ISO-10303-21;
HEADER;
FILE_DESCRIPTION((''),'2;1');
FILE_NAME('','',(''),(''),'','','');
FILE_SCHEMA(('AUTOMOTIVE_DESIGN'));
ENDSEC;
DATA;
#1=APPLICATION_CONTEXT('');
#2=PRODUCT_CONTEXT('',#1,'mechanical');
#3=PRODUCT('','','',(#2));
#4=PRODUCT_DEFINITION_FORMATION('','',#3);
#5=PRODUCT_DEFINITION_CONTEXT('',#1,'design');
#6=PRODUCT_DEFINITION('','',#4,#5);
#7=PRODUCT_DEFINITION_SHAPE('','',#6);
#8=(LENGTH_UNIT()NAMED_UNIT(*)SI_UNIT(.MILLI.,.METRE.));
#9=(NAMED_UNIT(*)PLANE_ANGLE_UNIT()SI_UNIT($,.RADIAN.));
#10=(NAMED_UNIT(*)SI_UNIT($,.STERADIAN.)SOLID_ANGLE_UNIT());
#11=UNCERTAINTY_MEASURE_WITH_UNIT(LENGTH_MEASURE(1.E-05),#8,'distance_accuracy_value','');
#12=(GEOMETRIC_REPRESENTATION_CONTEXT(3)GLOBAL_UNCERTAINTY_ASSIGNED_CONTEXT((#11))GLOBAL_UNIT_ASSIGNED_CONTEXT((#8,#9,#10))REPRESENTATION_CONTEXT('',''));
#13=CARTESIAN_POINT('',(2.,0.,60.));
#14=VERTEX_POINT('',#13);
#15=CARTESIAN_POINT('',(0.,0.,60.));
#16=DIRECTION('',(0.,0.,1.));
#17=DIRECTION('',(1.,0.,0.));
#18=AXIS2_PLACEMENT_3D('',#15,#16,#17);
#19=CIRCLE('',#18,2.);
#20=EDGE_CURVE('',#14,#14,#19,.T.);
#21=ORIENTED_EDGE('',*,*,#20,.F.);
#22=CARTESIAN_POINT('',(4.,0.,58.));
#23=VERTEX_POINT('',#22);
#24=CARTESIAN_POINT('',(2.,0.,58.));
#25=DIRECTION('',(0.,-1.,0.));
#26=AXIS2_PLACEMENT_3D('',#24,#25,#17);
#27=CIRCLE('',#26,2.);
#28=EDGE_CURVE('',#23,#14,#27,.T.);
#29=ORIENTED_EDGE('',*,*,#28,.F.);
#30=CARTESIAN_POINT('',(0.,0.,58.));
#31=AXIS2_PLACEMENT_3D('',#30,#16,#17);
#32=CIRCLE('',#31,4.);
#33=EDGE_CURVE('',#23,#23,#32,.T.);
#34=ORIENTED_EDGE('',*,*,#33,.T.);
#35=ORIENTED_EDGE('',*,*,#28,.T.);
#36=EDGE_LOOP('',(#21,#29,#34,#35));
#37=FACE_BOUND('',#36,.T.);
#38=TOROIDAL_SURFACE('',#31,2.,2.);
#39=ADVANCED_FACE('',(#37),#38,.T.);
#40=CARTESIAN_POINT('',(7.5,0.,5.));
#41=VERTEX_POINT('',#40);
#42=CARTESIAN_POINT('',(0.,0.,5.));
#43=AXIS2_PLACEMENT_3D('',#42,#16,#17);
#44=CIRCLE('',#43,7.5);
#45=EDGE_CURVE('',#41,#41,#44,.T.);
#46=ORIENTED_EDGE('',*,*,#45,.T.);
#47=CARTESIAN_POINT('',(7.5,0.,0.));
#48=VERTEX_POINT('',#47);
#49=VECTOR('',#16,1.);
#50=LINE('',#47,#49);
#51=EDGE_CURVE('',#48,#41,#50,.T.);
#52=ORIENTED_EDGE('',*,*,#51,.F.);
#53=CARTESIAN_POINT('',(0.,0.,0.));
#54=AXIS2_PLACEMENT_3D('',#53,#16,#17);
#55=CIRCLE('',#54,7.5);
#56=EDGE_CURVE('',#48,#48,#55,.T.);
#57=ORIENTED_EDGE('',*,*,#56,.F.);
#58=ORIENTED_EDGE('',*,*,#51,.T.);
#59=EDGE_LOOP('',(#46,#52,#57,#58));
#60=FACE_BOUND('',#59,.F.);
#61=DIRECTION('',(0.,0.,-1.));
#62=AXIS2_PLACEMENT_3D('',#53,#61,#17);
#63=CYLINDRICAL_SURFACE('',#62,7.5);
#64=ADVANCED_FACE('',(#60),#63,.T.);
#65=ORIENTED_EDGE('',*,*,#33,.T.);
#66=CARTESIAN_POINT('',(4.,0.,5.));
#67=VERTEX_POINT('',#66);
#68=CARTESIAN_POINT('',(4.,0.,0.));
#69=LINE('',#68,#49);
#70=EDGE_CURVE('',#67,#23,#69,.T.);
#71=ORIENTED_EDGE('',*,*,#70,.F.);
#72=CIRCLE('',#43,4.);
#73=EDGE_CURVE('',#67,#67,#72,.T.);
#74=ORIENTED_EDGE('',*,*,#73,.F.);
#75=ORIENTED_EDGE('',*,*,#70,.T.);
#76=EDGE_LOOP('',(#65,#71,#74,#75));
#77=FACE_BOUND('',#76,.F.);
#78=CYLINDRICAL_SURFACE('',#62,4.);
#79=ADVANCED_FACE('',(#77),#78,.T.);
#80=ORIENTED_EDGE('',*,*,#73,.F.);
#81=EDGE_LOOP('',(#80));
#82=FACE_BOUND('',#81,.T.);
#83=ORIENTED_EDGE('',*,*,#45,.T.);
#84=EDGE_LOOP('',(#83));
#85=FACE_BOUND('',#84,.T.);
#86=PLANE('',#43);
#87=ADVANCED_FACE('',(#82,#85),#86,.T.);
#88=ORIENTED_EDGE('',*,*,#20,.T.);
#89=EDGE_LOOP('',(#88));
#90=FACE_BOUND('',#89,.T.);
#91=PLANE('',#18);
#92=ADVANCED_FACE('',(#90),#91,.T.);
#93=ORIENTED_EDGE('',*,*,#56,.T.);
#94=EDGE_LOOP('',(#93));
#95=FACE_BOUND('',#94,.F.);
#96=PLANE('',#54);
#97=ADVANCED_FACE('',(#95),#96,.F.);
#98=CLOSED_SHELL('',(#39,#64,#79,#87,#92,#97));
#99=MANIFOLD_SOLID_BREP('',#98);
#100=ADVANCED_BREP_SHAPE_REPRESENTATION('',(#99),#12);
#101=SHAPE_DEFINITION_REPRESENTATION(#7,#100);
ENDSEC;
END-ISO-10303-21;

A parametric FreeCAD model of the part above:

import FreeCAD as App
import Part
import Sketcher
from FreeCAD import Vector


def edges_at(feature, points):
    """Names of the edges that pass closest to the given points."""
    edges = feature.Shape.Edges
    near = lambda p: min(range(len(edges)), key=lambda i: edges[i].distToShape(Part.Vertex(*p))[0])
    return sorted({f"Edge{near(p) + 1}" for p in points})

doc = App.newDocument("Part")
body = doc.addObject("PartDesign::Body", "Body")

sketch1 = body.newObject("Sketcher::SketchObject", "Sketch")
sketch1.AttachmentSupport = (doc.getObject("XY_Plane"), [""])
sketch1.MapMode = "FlatFace"
sketch1.addGeometry([
    Part.Circle(Vector(0, 0, 0), Vector(0, 0, 1), 7.5),
    Part.Circle(Vector(0, 0, 0), Vector(0, 0, 1), 4),
], False)
sketch1.addConstraint([
    Sketcher.Constraint("Coincident", 0, 3, -1, 1),
    Sketcher.Constraint("Coincident", 1, 3, -1, 1),
    Sketcher.Constraint("Diameter", 0, 15.0),
    Sketcher.Constraint("Diameter", 1, 8.0),
])
pad1 = body.newObject("PartDesign::Pad", "Pad")
pad1.Profile = sketch1
pad1.Length = 5

sketch2 = body.newObject("Sketcher::SketchObject", "Sketch001")
sketch2.AttachmentSupport = (doc.getObject("XY_Plane"), [""])
sketch2.MapMode = "FlatFace"
sketch2.addGeometry(Part.Circle(Vector(0, 0, 0), Vector(0, 0, 1), 4), False)
sketch2.addConstraint([
    Sketcher.Constraint("Coincident", 0, 3, -1, 1),
    Sketcher.Constraint("Diameter", 0, 8.0),
])
pad2 = body.newObject("PartDesign::Pad", "Pad001")
pad2.Profile = sketch2
pad2.Length = 60
doc.recompute()

fillet = body.newObject("PartDesign::Fillet", "Fillet")
fillet.Base = (pad2, edges_at(pad2, [(-3.729, -1.446, 60)]))
fillet.Radius = 2

doc.recompute()
